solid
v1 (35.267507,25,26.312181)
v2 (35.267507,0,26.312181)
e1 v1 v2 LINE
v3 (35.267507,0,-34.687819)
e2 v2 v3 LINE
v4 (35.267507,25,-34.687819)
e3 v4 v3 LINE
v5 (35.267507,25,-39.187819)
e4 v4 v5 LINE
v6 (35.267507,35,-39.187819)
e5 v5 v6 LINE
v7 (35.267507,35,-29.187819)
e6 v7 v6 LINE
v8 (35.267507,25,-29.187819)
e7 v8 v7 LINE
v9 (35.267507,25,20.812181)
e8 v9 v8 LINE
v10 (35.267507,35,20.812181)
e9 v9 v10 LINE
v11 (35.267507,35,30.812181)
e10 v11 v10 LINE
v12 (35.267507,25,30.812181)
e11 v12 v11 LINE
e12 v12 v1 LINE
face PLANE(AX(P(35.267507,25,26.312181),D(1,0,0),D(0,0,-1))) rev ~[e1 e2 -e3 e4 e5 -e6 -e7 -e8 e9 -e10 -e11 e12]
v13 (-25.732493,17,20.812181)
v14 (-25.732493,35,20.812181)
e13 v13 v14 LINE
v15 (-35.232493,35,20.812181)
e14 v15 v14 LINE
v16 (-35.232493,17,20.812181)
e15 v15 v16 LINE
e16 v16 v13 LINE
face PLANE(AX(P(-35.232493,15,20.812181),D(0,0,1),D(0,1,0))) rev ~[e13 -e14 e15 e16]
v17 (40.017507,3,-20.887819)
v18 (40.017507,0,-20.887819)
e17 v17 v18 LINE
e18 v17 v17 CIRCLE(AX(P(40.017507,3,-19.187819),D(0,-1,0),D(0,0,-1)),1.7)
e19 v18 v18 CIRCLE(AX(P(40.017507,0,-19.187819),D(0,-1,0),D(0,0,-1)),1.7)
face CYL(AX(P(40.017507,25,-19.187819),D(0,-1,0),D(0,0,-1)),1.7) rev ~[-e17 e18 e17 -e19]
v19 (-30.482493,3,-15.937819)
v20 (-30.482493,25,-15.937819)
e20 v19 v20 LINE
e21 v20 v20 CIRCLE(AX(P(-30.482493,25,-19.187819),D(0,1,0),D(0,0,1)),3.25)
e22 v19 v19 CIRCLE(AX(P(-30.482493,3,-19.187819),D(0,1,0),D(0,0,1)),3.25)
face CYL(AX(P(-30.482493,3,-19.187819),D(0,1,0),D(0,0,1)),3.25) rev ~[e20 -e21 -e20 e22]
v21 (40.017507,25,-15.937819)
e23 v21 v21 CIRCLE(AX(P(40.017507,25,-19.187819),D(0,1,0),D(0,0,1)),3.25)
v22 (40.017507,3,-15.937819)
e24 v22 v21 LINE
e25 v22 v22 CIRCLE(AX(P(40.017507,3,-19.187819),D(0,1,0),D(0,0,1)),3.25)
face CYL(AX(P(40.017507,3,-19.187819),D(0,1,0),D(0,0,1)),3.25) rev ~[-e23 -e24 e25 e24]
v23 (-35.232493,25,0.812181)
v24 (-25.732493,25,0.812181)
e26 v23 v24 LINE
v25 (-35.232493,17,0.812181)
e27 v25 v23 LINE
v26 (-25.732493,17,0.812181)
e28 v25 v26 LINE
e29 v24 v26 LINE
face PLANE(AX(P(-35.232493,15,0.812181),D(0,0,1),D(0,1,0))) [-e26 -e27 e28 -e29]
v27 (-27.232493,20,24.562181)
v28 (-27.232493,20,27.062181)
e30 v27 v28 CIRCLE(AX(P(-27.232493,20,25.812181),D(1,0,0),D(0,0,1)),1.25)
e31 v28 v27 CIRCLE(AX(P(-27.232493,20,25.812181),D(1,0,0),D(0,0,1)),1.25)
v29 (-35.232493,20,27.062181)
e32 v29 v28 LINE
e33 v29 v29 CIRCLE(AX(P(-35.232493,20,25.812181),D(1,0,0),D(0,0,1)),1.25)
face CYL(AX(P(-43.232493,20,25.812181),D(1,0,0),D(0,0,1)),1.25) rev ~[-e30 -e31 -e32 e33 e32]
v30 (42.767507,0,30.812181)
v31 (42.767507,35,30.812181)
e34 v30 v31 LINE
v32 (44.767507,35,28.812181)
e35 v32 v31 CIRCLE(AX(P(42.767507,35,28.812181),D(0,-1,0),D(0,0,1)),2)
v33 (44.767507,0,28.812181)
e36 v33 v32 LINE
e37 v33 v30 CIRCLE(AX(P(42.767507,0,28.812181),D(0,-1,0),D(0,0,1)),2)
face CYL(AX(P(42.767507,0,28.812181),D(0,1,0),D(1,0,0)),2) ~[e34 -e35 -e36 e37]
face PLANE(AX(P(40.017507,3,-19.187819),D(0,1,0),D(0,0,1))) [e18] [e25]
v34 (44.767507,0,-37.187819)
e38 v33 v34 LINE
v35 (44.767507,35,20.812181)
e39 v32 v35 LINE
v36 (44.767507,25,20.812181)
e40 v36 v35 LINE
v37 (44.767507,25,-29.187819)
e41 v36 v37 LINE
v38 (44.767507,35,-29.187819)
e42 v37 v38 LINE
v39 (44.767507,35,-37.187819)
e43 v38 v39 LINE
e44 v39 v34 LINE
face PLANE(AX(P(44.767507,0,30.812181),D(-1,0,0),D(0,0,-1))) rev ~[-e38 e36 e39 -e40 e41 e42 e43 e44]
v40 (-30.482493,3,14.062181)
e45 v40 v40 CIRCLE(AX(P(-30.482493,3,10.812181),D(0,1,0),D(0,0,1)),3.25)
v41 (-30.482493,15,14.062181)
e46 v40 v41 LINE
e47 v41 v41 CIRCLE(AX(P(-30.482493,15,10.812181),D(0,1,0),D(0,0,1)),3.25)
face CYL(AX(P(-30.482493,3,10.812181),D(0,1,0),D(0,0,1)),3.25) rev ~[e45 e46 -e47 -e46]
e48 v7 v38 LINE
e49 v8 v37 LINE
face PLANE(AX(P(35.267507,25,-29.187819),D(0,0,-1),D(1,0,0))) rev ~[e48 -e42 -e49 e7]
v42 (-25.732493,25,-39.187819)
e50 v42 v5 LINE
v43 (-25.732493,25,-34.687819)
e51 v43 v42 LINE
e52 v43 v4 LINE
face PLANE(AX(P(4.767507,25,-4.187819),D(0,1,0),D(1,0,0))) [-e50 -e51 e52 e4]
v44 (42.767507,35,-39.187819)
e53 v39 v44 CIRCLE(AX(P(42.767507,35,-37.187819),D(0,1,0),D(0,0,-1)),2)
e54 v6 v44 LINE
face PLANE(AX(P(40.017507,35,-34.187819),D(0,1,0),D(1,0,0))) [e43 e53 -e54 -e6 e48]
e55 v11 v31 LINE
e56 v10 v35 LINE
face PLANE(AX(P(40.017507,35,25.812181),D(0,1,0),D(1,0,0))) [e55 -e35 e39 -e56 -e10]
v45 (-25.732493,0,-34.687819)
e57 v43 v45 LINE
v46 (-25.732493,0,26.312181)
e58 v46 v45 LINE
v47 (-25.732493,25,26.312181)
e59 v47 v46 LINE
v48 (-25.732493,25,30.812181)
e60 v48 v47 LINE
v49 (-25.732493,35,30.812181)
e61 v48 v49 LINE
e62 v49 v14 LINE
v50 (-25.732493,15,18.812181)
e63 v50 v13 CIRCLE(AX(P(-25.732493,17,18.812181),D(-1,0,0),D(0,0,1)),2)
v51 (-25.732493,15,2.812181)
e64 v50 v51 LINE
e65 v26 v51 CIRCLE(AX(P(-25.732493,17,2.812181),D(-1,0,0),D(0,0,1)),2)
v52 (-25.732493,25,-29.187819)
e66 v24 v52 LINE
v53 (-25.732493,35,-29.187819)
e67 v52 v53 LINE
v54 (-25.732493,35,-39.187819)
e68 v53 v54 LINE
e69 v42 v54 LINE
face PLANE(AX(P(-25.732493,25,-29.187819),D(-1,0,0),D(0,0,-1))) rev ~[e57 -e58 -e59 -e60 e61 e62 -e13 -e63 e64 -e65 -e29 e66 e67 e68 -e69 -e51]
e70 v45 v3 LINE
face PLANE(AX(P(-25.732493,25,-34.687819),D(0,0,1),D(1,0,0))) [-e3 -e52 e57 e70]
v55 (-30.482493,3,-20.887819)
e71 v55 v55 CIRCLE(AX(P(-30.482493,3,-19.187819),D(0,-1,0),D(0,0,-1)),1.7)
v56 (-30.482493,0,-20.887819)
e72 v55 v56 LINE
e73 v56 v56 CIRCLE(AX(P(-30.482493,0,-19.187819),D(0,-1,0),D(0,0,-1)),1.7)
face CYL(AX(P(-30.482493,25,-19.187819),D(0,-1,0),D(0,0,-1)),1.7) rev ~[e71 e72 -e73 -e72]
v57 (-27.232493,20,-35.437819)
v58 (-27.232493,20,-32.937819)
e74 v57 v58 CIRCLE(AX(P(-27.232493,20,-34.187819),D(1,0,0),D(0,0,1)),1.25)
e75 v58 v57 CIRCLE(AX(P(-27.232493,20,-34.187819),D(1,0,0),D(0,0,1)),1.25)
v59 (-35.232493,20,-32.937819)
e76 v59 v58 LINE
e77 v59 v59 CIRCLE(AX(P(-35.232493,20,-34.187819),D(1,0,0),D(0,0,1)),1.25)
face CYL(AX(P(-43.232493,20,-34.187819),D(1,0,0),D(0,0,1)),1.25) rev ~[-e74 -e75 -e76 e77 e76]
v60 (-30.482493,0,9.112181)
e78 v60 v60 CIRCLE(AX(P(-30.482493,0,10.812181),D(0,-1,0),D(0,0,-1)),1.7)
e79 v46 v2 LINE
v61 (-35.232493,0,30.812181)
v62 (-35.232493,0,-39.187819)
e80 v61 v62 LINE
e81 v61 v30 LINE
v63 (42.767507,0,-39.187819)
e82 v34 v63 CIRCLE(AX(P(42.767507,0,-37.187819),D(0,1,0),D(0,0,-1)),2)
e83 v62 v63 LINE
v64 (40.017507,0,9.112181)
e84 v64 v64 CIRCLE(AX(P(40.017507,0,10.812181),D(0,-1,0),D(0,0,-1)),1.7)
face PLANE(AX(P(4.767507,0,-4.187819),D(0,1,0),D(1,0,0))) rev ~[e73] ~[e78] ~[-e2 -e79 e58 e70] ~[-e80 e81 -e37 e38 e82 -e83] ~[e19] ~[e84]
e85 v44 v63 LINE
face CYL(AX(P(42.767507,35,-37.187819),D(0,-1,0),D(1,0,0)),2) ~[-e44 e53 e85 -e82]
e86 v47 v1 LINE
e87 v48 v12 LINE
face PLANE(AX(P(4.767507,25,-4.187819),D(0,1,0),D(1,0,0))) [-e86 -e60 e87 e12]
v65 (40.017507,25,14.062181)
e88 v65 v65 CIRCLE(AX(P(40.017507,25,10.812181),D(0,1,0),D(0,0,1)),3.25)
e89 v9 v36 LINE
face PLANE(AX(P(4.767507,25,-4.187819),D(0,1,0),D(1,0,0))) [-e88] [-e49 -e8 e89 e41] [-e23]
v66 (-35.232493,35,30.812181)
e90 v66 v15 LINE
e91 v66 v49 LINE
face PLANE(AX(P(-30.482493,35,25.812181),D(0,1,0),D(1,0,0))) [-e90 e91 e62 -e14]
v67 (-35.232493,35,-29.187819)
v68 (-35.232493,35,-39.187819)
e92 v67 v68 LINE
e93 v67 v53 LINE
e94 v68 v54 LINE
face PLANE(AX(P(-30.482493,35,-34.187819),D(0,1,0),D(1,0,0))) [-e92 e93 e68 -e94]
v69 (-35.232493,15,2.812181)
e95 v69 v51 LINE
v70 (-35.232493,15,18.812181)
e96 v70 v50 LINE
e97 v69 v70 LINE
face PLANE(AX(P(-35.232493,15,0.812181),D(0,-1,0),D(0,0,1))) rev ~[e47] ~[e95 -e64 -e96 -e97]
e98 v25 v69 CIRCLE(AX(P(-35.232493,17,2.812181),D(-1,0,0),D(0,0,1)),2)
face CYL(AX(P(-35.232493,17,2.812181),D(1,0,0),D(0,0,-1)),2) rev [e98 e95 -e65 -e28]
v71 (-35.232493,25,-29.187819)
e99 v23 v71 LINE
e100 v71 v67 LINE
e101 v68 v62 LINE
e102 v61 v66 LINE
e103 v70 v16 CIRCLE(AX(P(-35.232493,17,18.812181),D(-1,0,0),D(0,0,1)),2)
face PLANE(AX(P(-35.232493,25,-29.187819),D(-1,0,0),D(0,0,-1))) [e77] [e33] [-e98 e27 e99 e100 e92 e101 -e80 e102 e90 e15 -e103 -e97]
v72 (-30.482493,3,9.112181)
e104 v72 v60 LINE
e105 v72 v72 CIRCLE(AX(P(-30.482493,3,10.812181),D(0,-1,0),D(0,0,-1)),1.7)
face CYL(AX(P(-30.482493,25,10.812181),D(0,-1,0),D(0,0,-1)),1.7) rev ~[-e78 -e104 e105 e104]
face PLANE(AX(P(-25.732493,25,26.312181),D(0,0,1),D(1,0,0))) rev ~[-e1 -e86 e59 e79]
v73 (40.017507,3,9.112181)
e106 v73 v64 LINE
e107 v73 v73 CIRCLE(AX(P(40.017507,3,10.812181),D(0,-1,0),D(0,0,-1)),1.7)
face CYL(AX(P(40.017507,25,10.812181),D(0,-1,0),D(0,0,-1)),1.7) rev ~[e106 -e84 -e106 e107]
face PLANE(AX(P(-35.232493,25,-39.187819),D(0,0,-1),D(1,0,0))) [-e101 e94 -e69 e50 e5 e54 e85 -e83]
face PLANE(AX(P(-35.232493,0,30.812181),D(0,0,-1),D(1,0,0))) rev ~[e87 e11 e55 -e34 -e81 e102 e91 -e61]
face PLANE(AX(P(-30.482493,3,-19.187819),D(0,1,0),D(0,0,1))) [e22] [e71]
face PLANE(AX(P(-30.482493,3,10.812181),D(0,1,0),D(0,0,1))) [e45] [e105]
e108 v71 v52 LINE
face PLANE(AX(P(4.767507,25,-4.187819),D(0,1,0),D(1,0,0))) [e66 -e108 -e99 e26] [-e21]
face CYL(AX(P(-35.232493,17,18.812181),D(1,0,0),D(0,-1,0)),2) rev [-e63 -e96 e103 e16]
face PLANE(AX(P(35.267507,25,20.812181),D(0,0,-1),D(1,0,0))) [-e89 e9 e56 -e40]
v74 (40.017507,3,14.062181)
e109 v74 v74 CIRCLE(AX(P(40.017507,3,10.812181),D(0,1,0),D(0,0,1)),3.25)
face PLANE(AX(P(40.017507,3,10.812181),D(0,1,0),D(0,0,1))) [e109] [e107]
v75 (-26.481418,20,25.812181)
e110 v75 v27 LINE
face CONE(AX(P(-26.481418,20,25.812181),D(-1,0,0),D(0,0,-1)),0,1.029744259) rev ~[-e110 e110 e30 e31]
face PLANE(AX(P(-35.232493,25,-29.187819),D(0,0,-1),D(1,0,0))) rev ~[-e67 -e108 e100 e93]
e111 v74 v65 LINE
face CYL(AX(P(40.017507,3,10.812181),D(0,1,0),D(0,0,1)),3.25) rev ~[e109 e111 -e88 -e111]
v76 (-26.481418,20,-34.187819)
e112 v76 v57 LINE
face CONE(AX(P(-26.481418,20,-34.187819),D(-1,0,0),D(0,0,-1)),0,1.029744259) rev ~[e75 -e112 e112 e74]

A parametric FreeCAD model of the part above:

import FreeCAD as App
import Part
import Sketcher

V = App.Vector
Q = App.Units.Quantity


def edges_at(feature, points):
    """Names of the edges that pass closest to the given points."""
    edges = feature.Shape.Edges
    near = lambda p: min(range(len(edges)), key=lambda i: edges[i].distToShape(Part.Vertex(*p))[0])
    return sorted({f"Edge{near(p) + 1}" for p in points})


def add_polygon(sketch, points):
    """Adds a closed chain of lines whose ends are joined by coincident constraints."""
    first, n = sketch.GeometryCount, len(points)
    for a, b in zip(points, points[1:] + points[:1]):
        sketch.addGeometry(Part.LineSegment(App.Vector(*a, 0), App.Vector(*b, 0)), False)
    for i in range(n):
        sketch.addConstraint(Sketcher.Constraint("Coincident", first + i, 2, first + (i + 1) % n, 1))

doc = App.newDocument("Part")
params = doc.addObject("Spreadsheet::Sheet", "Params")
for row, (alias, value) in enumerate([
    ("sketch1_width", "80 mm"),
    ("sketch1_height", "70 mm"),
    ("pad1_length", "25 mm"),
    ("sketch2_width", "61 mm"),
    ("sketch3_height", "10 mm"),
    ("sketch3_width", "9.5 mm"),
    ("pad2_length", "10 mm"),
    ("fillet_radius", "2 mm"),
    ("fillet2_radius", "2 mm"),
    ("sketch4_diameter", "3.4 mm"),
    ("hole_diameter", "3.4 mm"),
    ("hole_cbore_diameter", "6.5 mm"),
    ("hole_cbore_depth", "22 mm"),
    ("sketch5_diameter", "2.5 mm"),
    ("hole2_diameter", "2.5 mm"),
    ("hole2_depth", "8 mm"),
    ("sketch6_width", "10 mm"),
    ("sketch6_height", "20 mm"),
    ("pocket2_length", "9.5 mm"),
    ("fillet3_radius", "2 mm"),
], start=1):
    params.set(f"A{row}", alias)
    params.set(f"B{row}", "=" + value)
    params.setAlias(f"B{row}", alias)

body = doc.addObject("PartDesign::Body", "Body")

# Sketch on XZ plane
sketch1 = body.newObject("Sketcher::SketchObject", "Sketch")
sketch1.AttachmentSupport = (doc.getObject("XZ_Plane"), [""])
sketch1.MapMode = "FlatFace"
add_polygon(sketch1, [(-35.232493, -39.187819), (-35.232493, 30.812181), (44.767507, 30.812181), (44.767507, -39.187819)])  # lines 0-3
sketch1.addConstraint([
    Sketcher.Constraint("Vertical", 0),
    Sketcher.Constraint("Horizontal", 1),
    Sketcher.Constraint("Vertical", 2),
    Sketcher.Constraint("Horizontal", 3),
    Sketcher.Constraint("DistanceX", 1, 1, 1, 2, Q("80 mm")),
    Sketcher.Constraint("DistanceY", 0, 1, 0, 2, Q("70 mm")),
    Sketcher.Constraint("DistanceY", -1, 1, 0, 2, Q("30.812181 mm")),
    Sketcher.Constraint("DistanceX", 0, 2, -1, 1, Q("35.232493 mm")),
])
sketch1.setExpression("Constraints[8]", "Params.sketch1_width")
sketch1.setExpression("Constraints[9]", "Params.sketch1_height")
pad1 = body.newObject("PartDesign::Pad", "Pad")
pad1.Profile = sketch1
pad1.setExpression("Length", "Params.pad1_length")
pad1.Reversed = True

# Sketch on XZ plane
sketch2 = body.newObject("Sketcher::SketchObject", "Sketch001")
sketch2.AttachmentSupport = (doc.getObject("XZ_Plane"), [""])
sketch2.MapMode = "FlatFace"
sketch2.AttachmentOffset = App.Placement(V(0, 0, -25), App.Rotation())
add_polygon(sketch2, [(-25.732493, -34.687819), (-25.732493, 26.312181), (35.267507, 26.312181), (35.267507, -34.687819)])  # lines 0-3
sketch2.addConstraint([
    Sketcher.Constraint("Vertical", 0),
    Sketcher.Constraint("Horizontal", 1),
    Sketcher.Constraint("Vertical", 2),
    Sketcher.Constraint("Horizontal", 3),
    Sketcher.Constraint("Equal", 3, 0),
    Sketcher.Constraint("DistanceX", 1, 1, 1, 2, Q("61 mm")),
    Sketcher.Constraint("DistanceY", -1, 1, 0, 2, Q("26.312181 mm")),
    Sketcher.Constraint("DistanceX", 0, 2, -1, 1, Q("25.732493 mm")),
])
sketch2.setExpression("Constraints[9]", "Params.sketch2_width")
pocket1 = body.newObject("PartDesign::Pocket", "Pocket")
pocket1.Profile = sketch2
pocket1.Type = "ThroughAll"
pocket1.Reversed = True

# Sketch on XZ plane
sketch3 = body.newObject("Sketcher::SketchObject", "Sketch002")
sketch3.AttachmentSupport = (doc.getObject("XZ_Plane"), [""])
sketch3.MapMode = "FlatFace"
sketch3.AttachmentOffset = App.Placement(V(0, 0, -25), App.Rotation())
add_polygon(sketch3, [(-35.232493, -39.187819), (-35.232493, -29.187819), (-25.732493, -29.187819), (-25.732493, -39.187819)])  # lines 0-3
add_polygon(sketch3, [(35.267507, -39.187819), (35.267507, -29.187819), (44.767507, -29.187819), (44.767507, -39.187819)])  # lines 4-7
add_polygon(sketch3, [(-35.232493, 20.812181), (-35.232493, 30.812181), (-25.732493, 30.812181), (-25.732493, 20.812181)])  # lines 8-11
add_polygon(sketch3, [(35.267507, 20.812181), (35.267507, 30.812181), (44.767507, 30.812181), (44.767507, 20.812181)])  # lines 12-15
sketch3.addConstraint([
    Sketcher.Constraint("Vertical", 0),
    Sketcher.Constraint("Horizontal", 1),
    Sketcher.Constraint("Vertical", 2),
    Sketcher.Constraint("Horizontal", 3),
    Sketcher.Constraint("Vertical", 4),
    Sketcher.Constraint("Horizontal", 5),
    Sketcher.Constraint("Vertical", 6),
    Sketcher.Constraint("Horizontal", 7),
    Sketcher.Constraint("Vertical", 8),
    Sketcher.Constraint("Horizontal", 9),
    Sketcher.Constraint("Vertical", 10),
    Sketcher.Constraint("Horizontal", 11),
    Sketcher.Constraint("Vertical", 12),
    Sketcher.Constraint("Horizontal", 13),
    Sketcher.Constraint("Vertical", 14),
    Sketcher.Constraint("Horizontal", 15),
    Sketcher.Constraint("Horizontal", 1, 2, 4, 2),
    Sketcher.Constraint("Horizontal", 3, 2, 6, 2),
    Sketcher.Constraint("Horizontal", 9, 2, 12, 2),
    Sketcher.Constraint("Horizontal", 11, 2, 14, 2),
    Sketcher.Constraint("Vertical", 3, 2, 8, 2),
    Sketcher.Constraint("Vertical", 2, 2, 9, 2),
    Sketcher.Constraint("Vertical", 7, 2, 12, 2),
    Sketcher.Constraint("Vertical", 6, 2, 13, 2),
    Sketcher.Constraint("Equal", 3, 5),
    Sketcher.Constraint("Equal", 6, 8),
    Sketcher.Constraint("DistanceY", 0, 1, 0, 2, Q("10 mm")),
    Sketcher.Constraint("DistanceX", 1, 1, 1, 2, Q("9.5 mm")),
    Sketcher.Constraint("DistanceX", 1, 2, 4, 2, Q("61 mm")),
    Sketcher.Constraint("DistanceY", 0, 2, 8, 2, Q("60 mm")),
    Sketcher.Constraint("DistanceY", 0, 2, -1, 1, Q("29.187819 mm")),
    Sketcher.Constraint("DistanceX", 0, 2, -1, 1, Q("35.232493 mm")),
])
sketch3.setExpression("Constraints[42]", "Params.sketch3_height")
sketch3.setExpression("Constraints[43]", "Params.sketch3_width")
pad2 = body.newObject("PartDesign::Pad", "Pad001")
pad2.Profile = sketch3
pad2.setExpression("Length", "Params.pad2_length")
pad2.Reversed = True
doc.recompute()

fillet = body.newObject("PartDesign::Fillet", "Fillet")
fillet.Base = (pad2, edges_at(pad2, [(44.768, 17.5, 30.812)]))
fillet.setExpression("Radius", "Params.fillet_radius")
doc.recompute()

fillet2 = body.newObject("PartDesign::Fillet", "Fillet001")
fillet2.Base = (fillet, edges_at(fillet, [(44.768, 17.5, -39.188)]))
fillet2.setExpression("Radius", "Params.fillet2_radius")

# Sketch on XZ plane
sketch4 = body.newObject("Sketcher::SketchObject", "Sketch003")
sketch4.AttachmentSupport = (doc.getObject("XZ_Plane"), [""])
sketch4.MapMode = "FlatFace"
sketch4.AttachmentOffset = App.Placement(V(0, 0, -25), App.Rotation())
sketch4.addGeometry([
    Part.Circle(V(-30.482493, -19.187819, 0), V(0, 0, 1), 1.7),
    Part.Circle(V(-30.482493, 10.812181, 0), V(0, 0, 1), 1.7),
    Part.Circle(V(40.017507, 10.812181, 0), V(0, 0, 1), 1.7),
    Part.Circle(V(40.017507, -19.187819, 0), V(0, 0, 1), 1.7),
], False)
sketch4.addConstraint([
    Sketcher.Constraint("Equal", 0, 1),
    Sketcher.Constraint("Equal", 1, 2),
    Sketcher.Constraint("Equal", 2, 3),
    Sketcher.Constraint("Horizontal", 1, 3, 2, 3),
    Sketcher.Constraint("Horizontal", 0, 3, 3, 3),
    Sketcher.Constraint("Vertical", 0, 3, 1, 3),
    Sketcher.Constraint("Vertical", 2, 3, 3, 3),
    Sketcher.Constraint("Diameter", 0, Q("3.4 mm")),
    Sketcher.Constraint("DistanceY", 0, 3, 1, 3, Q("30 mm")),
    Sketcher.Constraint("DistanceX", 1, 3, 2, 3, Q("70.5 mm")),
    Sketcher.Constraint("DistanceY", 0, 3, -1, 1, Q("19.187819 mm")),
    Sketcher.Constraint("DistanceX", 0, 3, -1, 1, Q("30.482493 mm")),
])
sketch4.setExpression("Constraints[7]", "Params.sketch4_diameter")
doc.recompute()
hole = body.newObject("PartDesign::Hole", "Hole")
hole.Profile = sketch4
hole.ThreadType = "None"
hole.setExpression("Diameter", "Params.hole_diameter")
hole.DepthType = "ThroughAll"
hole.HoleCutType = "Counterbore"
hole.setExpression("HoleCutDiameter", "Params.hole_cbore_diameter")
hole.setExpression("HoleCutDepth", "Params.hole_cbore_depth")
hole.Reversed = True

# Sketch on YZ plane
sketch5 = body.newObject("Sketcher::SketchObject", "Sketch004")
sketch5.AttachmentSupport = (doc.getObject("YZ_Plane"), [""])
sketch5.MapMode = "FlatFace"
sketch5.AttachmentOffset = App.Placement(V(0, 0, -35.232493), App.Rotation())
sketch5.addGeometry([
    Part.Circle(V(20, 25.812181, 0), V(0, 0, 1), 1.25),
    Part.Circle(V(20, -34.187819, 0), V(0, 0, 1), 1.25),
], False)
sketch5.addConstraint([
    Sketcher.Constraint("Equal", 0, 1),
    Sketcher.Constraint("Vertical", 0, 3, 1, 3),
    Sketcher.Constraint("Diameter", 0, Q("2.5 mm")),
    Sketcher.Constraint("DistanceX", -1, 1, 0, 3, Q("20 mm")),
    Sketcher.Constraint("DistanceY", 1, 3, 0, 3, Q("60 mm")),
    Sketcher.Constraint("DistanceY", -1, 1, 0, 3, Q("25.812181 mm")),
])
sketch5.setExpression("Constraints[2]", "Params.sketch5_diameter")
doc.recompute()
hole2 = body.newObject("PartDesign::Hole", "Hole001")
hole2.Profile = sketch5
hole2.ThreadType = "None"
hole2.setExpression("Diameter", "Params.hole2_diameter")
hole2.DepthType = "Dimension"
hole2.setExpression("Depth", "Params.hole2_depth")
hole2.DrillPoint = "Angled"
hole2.DrillPointAngle = 118
hole2.Reversed = True

# Sketch on YZ plane
sketch6 = body.newObject("Sketcher::SketchObject", "Sketch005")
sketch6.AttachmentSupport = (doc.getObject("YZ_Plane"), [""])
sketch6.MapMode = "FlatFace"
sketch6.AttachmentOffset = App.Placement(V(0, 0, -35.232493), App.Rotation())
add_polygon(sketch6, [(25, 0.812181), (15, 0.812181), (15, 20.812181), (25, 20.812181)])  # lines 0-3
sketch6.addConstraint([
    Sketcher.Constraint("Horizontal", 0),
    Sketcher.Constraint("Vertical", 1),
    Sketcher.Constraint("Horizontal", 2),
    Sketcher.Constraint("Vertical", 3),
    Sketcher.Constraint("DistanceX", 0, 2, 0, 1, Q("10 mm")),
    Sketcher.Constraint("DistanceY", 1, 1, 1, 2, Q("20 mm")),
    Sketcher.Constraint("DistanceX", -1, 1, 0, 2, Q("15 mm")),
    Sketcher.Constraint("DistanceY", -1, 1, 0, 2, Q("0.812181 mm")),
])
sketch6.setExpression("Constraints[8]", "Params.sketch6_width")
sketch6.setExpression("Constraints[9]", "Params.sketch6_height")
pocket2 = body.newObject("PartDesign::Pocket", "Pocket001")
pocket2.Profile = sketch6
pocket2.setExpression("Length", "Params.pocket2_length")
pocket2.Reversed = True
doc.recompute()

fillet3 = body.newObject("PartDesign::Fillet", "Fillet002")
fillet3.Base = (pocket2, edges_at(pocket2, [(-30.482, 15, 0.812), (-30.482, 15, 20.812)]))
fillet3.setExpression("Radius", "Params.fillet3_radius")

doc.recompute()
